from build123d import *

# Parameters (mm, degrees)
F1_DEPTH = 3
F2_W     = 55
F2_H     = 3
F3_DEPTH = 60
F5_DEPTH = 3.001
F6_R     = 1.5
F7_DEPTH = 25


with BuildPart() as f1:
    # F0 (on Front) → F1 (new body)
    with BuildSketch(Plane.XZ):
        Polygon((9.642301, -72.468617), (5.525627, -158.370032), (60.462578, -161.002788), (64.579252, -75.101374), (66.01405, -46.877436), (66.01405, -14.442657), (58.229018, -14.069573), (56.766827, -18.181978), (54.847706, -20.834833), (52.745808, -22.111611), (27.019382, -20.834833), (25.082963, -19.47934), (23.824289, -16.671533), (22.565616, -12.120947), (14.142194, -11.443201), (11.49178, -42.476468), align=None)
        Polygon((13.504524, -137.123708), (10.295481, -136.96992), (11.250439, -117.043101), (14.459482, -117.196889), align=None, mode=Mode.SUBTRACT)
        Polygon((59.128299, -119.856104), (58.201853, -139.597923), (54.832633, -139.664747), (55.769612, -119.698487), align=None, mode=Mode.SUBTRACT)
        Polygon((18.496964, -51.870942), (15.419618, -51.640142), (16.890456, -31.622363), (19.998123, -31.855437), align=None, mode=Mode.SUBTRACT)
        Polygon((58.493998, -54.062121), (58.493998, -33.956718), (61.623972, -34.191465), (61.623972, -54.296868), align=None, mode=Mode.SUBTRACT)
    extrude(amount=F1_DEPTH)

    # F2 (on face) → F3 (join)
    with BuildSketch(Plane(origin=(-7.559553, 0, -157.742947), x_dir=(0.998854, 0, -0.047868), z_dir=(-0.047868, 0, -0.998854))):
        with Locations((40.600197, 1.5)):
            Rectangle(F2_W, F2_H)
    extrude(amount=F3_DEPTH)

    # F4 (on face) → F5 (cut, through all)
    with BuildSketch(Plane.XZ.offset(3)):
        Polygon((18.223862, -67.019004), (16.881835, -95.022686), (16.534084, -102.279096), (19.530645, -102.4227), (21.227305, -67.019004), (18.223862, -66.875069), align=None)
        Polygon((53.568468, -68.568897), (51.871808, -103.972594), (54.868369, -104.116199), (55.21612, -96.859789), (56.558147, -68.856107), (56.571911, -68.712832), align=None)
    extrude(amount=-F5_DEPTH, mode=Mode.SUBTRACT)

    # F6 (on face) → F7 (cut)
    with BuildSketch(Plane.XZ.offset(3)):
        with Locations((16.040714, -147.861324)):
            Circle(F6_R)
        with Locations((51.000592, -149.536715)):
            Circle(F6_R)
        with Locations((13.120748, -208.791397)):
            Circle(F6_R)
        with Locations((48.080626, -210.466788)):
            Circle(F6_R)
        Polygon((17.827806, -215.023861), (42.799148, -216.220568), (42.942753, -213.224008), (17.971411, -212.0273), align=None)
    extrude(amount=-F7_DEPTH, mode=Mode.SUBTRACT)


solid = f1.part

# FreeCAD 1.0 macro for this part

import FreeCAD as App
import Part
import Sketcher
from FreeCAD import Vector
Q = App.Units.Quantity

doc = App.newDocument("Part")
body = doc.addObject("PartDesign::Body", "Body")

sketch1 = doc.addObject("Sketcher::SketchObject", "Sketch")
body.addObject(sketch1)
sketch1.AttachmentSupport = (doc.XZ_Plane, [""])
sketch1.MapMode = "FlatFace"
sketch1.addGeometry([
    Part.LineSegment(Vector(9.642301, -72.468617, 0), Vector(5.525627, -158.370032, 0)),
    Part.LineSegment(Vector(5.525627, -158.370032, 0), Vector(60.462578, -161.002788, 0)),
    Part.LineSegment(Vector(60.462578, -161.002788, 0), Vector(64.579252, -75.101374, 0)),
    Part.LineSegment(Vector(64.579252, -75.101374, 0), Vector(66.01405, -46.877436, 0)),
    Part.LineSegment(Vector(66.01405, -46.877436, 0), Vector(66.01405, -14.442657, 0)),
    Part.LineSegment(Vector(66.01405, -14.442657, 0), Vector(58.229018, -14.069573, 0)),
    Part.LineSegment(Vector(58.229018, -14.069573, 0), Vector(56.766827, -18.181978, 0)),
    Part.LineSegment(Vector(56.766827, -18.181978, 0), Vector(54.847706, -20.834833, 0)),
    Part.LineSegment(Vector(54.847706, -20.834833, 0), Vector(52.745808, -22.111611, 0)),
    Part.LineSegment(Vector(52.745808, -22.111611, 0), Vector(27.019382, -20.834833, 0)),
    Part.LineSegment(Vector(27.019382, -20.834833, 0), Vector(25.082963, -19.47934, 0)),
    Part.LineSegment(Vector(25.082963, -19.47934, 0), Vector(23.824289, -16.671533, 0)),
    Part.LineSegment(Vector(23.824289, -16.671533, 0), Vector(22.565616, -12.120947, 0)),
    Part.LineSegment(Vector(22.565616, -12.120947, 0), Vector(14.142194, -11.443201, 0)),
    Part.LineSegment(Vector(14.142194, -11.443201, 0), Vector(11.49178, -42.476468, 0)),
    Part.LineSegment(Vector(11.49178, -42.476468, 0), Vector(9.642301, -72.468617, 0)),
    Part.LineSegment(Vector(14.459482, -117.196889, 0), Vector(13.504524, -137.123708, 0)),
    Part.LineSegment(Vector(13.504524, -137.123708, 0), Vector(10.295481, -136.96992, 0)),
    Part.LineSegment(Vector(10.295481, -136.96992, 0), Vector(11.250439, -117.043101, 0)),
    Part.LineSegment(Vector(11.250439, -117.043101, 0), Vector(14.459482, -117.196889, 0)),
    Part.LineSegment(Vector(55.769612, -119.698487, 0), Vector(59.128299, -119.856104, 0)),
    Part.LineSegment(Vector(59.128299, -119.856104, 0), Vector(58.201853, -139.597923, 0)),
    Part.LineSegment(Vector(58.201853, -139.597923, 0), Vector(54.832633, -139.664747, 0)),
    Part.LineSegment(Vector(54.832633, -139.664747, 0), Vector(55.769612, -119.698487, 0)),
    Part.LineSegment(Vector(19.998123, -31.855437, 0), Vector(18.496964, -51.870942, 0)),
    Part.LineSegment(Vector(18.496964, -51.870942, 0), Vector(15.419618, -51.640142, 0)),
    Part.LineSegment(Vector(15.419618, -51.640142, 0), Vector(16.890456, -31.622363, 0)),
    Part.LineSegment(Vector(16.890456, -31.622363, 0), Vector(19.998123, -31.855437, 0)),
    Part.LineSegment(Vector(61.623972, -54.296868, 0), Vector(58.493998, -54.062121, 0)),
    Part.LineSegment(Vector(58.493998, -54.062121, 0), Vector(58.493998, -33.956718, 0)),
    Part.LineSegment(Vector(58.493998, -33.956718, 0), Vector(61.623972, -34.191465, 0)),
    Part.LineSegment(Vector(61.623972, -34.191465, 0), Vector(61.623972, -54.296868, 0)),
], False)
sketch1.addConstraint([
    Sketcher.Constraint("Coincident", 0, 2, 1, 1),
    Sketcher.Constraint("Coincident", 1, 2, 2, 1),
    Sketcher.Constraint("Coincident", 2, 2, 3, 1),
    Sketcher.Constraint("Coincident", 3, 2, 4, 1),
    Sketcher.Constraint("Coincident", 4, 2, 5, 1),
    Sketcher.Constraint("Coincident", 5, 2, 6, 1),
    Sketcher.Constraint("Coincident", 6, 2, 7, 1),
    Sketcher.Constraint("Coincident", 7, 2, 8, 1),
    Sketcher.Constraint("Coincident", 8, 2, 9, 1),
    Sketcher.Constraint("Coincident", 9, 2, 10, 1),
    Sketcher.Constraint("Coincident", 10, 2, 11, 1),
    Sketcher.Constraint("Coincident", 11, 2, 12, 1),
    Sketcher.Constraint("Coincident", 12, 2, 13, 1),
    Sketcher.Constraint("Coincident", 13, 2, 14, 1),
    Sketcher.Constraint("Coincident", 14, 2, 15, 1),
    Sketcher.Constraint("Coincident", 15, 2, 0, 1),
    Sketcher.Constraint("Coincident", 16, 2, 17, 1),
    Sketcher.Constraint("Coincident", 17, 2, 18, 1),
    Sketcher.Constraint("Coincident", 18, 2, 19, 1),
    Sketcher.Constraint("Coincident", 19, 2, 16, 1),
    Sketcher.Constraint("Coincident", 20, 2, 21, 1),
    Sketcher.Constraint("Coincident", 21, 2, 22, 1),
    Sketcher.Constraint("Coincident", 22, 2, 23, 1),
    Sketcher.Constraint("Coincident", 23, 2, 20, 1),
    Sketcher.Constraint("Coincident", 24, 2, 25, 1),
    Sketcher.Constraint("Coincident", 25, 2, 26, 1),
    Sketcher.Constraint("Coincident", 26, 2, 27, 1),
    Sketcher.Constraint("Coincident", 27, 2, 24, 1),
    Sketcher.Constraint("Coincident", 28, 2, 29, 1),
    Sketcher.Constraint("Coincident", 29, 2, 30, 1),
    Sketcher.Constraint("Coincident", 30, 2, 31, 1),
    Sketcher.Constraint("Coincident", 31, 2, 28, 1),
    Sketcher.Constraint("Vertical", 4),
    Sketcher.Constraint("Vertical", 29),
    Sketcher.Constraint("Vertical", 31),
    Sketcher.Constraint("Distance", 0, Q("86.000001 mm")),
    Sketcher.Constraint("Distance", 1, Q("55 mm")),
    Sketcher.Constraint("Distance", 2, Q("86 mm")),
    Sketcher.Constraint("DistanceX", 17, 2, 19, 2, Q("4.164001 mm")),
    Sketcher.Constraint("DistanceX", 24, 2, 10, 2, Q("6.585999 mm")),
    Sketcher.Constraint("Distance", 10, Q("2.3637 mm")),
    Sketcher.Constraint("DistanceY", 4, 1, 4, 2, Q("32.434779 mm")),
    Sketcher.Constraint("DistanceY", 13, 2, -1, 1, Q("11.443201 mm")),
    Sketcher.Constraint("DistanceX", -1, 1, 15, 2, Q("9.642301 mm")),
    Sketcher.Constraint("DistanceY", 18, 2, -1, 1, Q("117.043101 mm")),
    Sketcher.Constraint("DistanceX", -1, 1, 20, 2, Q("59.128299 mm")),
    Sketcher.Constraint("DistanceX", 2, 2, 3, 2, Q("1.434798 mm")),
    Sketcher.Constraint("DistanceY", 2, 2, 5, 2, Q("61.031801 mm")),
    Sketcher.Constraint("DistanceX", 8, 2, 7, 2, Q("2.101898 mm")),
    Sketcher.Constraint("DistanceY", 9, 2, 11, 2, Q("4.1633 mm")),
    Sketcher.Constraint("DistanceY", 7, 2, 11, 2, Q("4.1633 mm")),
    Sketcher.Constraint("DistanceY", 23, 2, 19, 2, Q("2.501598 mm")),
    Sketcher.Constraint("DistanceY", 1, 2, 23, 2, Q("41.304301 mm")),
    Sketcher.Constraint("DistanceY", 24, 2, 25, 2, Q("0.2308 mm")),
    Sketcher.Constraint("DistanceY", 25, 2, 10, 2, Q("32.160802 mm")),
    Sketcher.Constraint("Distance", 9, Q("25.758089 mm")),
    Sketcher.Constraint("Distance", 11, Q("3.077018 mm")),
    Sketcher.Constraint("Distance", 12, Q("4.72145 mm")),
    Sketcher.Constraint("Distance", 14, Q("31.146241 mm")),
    Sketcher.Constraint("Distance", 15, Q("30.049119 mm")),
    Sketcher.Constraint("Distance", 16, Q("19.949688 mm")),
    Sketcher.Constraint("Distance", 18, Q("19.949688 mm")),
    Sketcher.Constraint("Distance", 24, Q("20.071719 mm")),
    Sketcher.Constraint("Distance", 25, Q("3.085989 mm")),
    Sketcher.Constraint("DistanceY", 29, 1, 29, 2, Q("20.105403 mm")),
    Sketcher.Constraint("DistanceY", 31, 2, 31, 1, Q("20.105403 mm")),
    Sketcher.Constraint("DistanceY", 0, 2, -1, 1, Q("158.370032 mm")),
    Sketcher.Constraint("DistanceY", 1, 2, -1, 1, Q("161.002788 mm")),
    Sketcher.Constraint("DistanceX", -1, 1, 2, 2, Q("64.579252 mm")),
    Sketcher.Constraint("DistanceX", -1, 1, 5, 2, Q("58.229018 mm")),
    Sketcher.Constraint("DistanceY", 6, 2, -1, 1, Q("18.181978 mm")),
    Sketcher.Constraint("DistanceY", 8, 2, -1, 1, Q("22.111611 mm")),
    Sketcher.Constraint("DistanceX", -1, 1, 9, 2, Q("27.019382 mm")),
    Sketcher.Constraint("DistanceY", 10, 2, -1, 1, Q("19.47934 mm")),
    Sketcher.Constraint("DistanceX", -1, 1, 11, 2, Q("23.824289 mm")),
    Sketcher.Constraint("DistanceX", -1, 1, 14, 2, Q("11.49178 mm")),
    Sketcher.Constraint("DistanceY", 16, 2, -1, 1, Q("137.123708 mm")),
    Sketcher.Constraint("DistanceX", -1, 1, 17, 2, Q("10.295481 mm")),
    Sketcher.Constraint("DistanceY", 17, 2, -1, 1, Q("136.96992 mm")),
    Sketcher.Constraint("DistanceY", 28, 2, -1, 1, Q("54.062121 mm")),
    Sketcher.Constraint("DistanceY", 31, 2, -1, 1, Q("54.296868 mm")),
    Sketcher.Constraint("DistanceY", 0, 2, 2, 2, Q("83.268658 mm")),
    Sketcher.Constraint("DistanceY", 2, 2, 3, 2, Q("28.223938 mm")),
    Sketcher.Constraint("DistanceX", 6, 2, 5, 2, Q("1.462191 mm")),
    Sketcher.Constraint("DistanceX", 12, 2, 8, 2, Q("30.180192 mm")),
    Sketcher.Constraint("DistanceY", 20, 2, 2, 2, Q("44.75473 mm")),
    Sketcher.Constraint("DistanceY", 21, 2, 20, 2, Q("19.741819 mm")),
    Sketcher.Constraint("DistanceX", 16, 2, 21, 2, Q("44.697329 mm")),
    Sketcher.Constraint("DistanceX", 22, 2, 21, 2, Q("3.36922 mm")),
    Sketcher.Constraint("DistanceY", 1, 2, 22, 2, Q("21.338041 mm")),
    Sketcher.Constraint("DistanceX", 22, 2, 23, 2, Q("0.936979 mm")),
    Sketcher.Constraint("DistanceY", 26, 2, 9, 2, Q("10.78753 mm")),
    Sketcher.Constraint("DistanceX", 25, 2, 26, 2, Q("1.470838 mm")),
    Sketcher.Constraint("DistanceX", 27, 2, 9, 2, Q("7.021259 mm")),
    Sketcher.Constraint("DistanceX", 28, 2, 3, 2, Q("7.520052 mm")),
    Sketcher.Constraint("DistanceX", 31, 2, 2, 2, Q("2.95528 mm")),
])
pad1 = doc.addObject("PartDesign::Pad", "Pad")
body.addObject(pad1)
pad1.Profile = sketch1
pad1.Length = 3

sketch2 = doc.addObject("Sketcher::SketchObject", "Sketch001")
body.addObject(sketch2)
sketch2.Placement = App.Placement(Vector(-7.559553, 0, -157.742947), App.Rotation(Vector(0.998853671, 0, -0.047867984), Vector(0, -1, 0), Vector(-0.047867984, 0, -0.998853671), "ZXY"))
sketch2.addGeometry([
    Part.LineSegment(Vector(13.1, 3, 0), Vector(13.1, 0, 0)),
    Part.LineSegment(Vector(13.1, 0, 0), Vector(68.1, 0, 0)),
    Part.LineSegment(Vector(68.1, 0, 0), Vector(68.1, 3, 0)),
    Part.LineSegment(Vector(68.1, 3, 0), Vector(13.1, 3, 0)),
], False)
sketch2.addConstraint([
    Sketcher.Constraint("Coincident", 0, 2, 1, 1),
    Sketcher.Constraint("Coincident", 1, 2, 2, 1),
    Sketcher.Constraint("Coincident", 2, 2, 3, 1),
    Sketcher.Constraint("Coincident", 3, 2, 0, 1),
    Sketcher.Constraint("Vertical", 0),
    Sketcher.Constraint("Horizontal", 1),
    Sketcher.Constraint("Vertical", 2),
    Sketcher.Constraint("Horizontal", 3),
    Sketcher.Constraint("PointOnObject", 0, 2, -1),
    Sketcher.Constraint("DistanceX", 1, 1, 1, 2, Q("55 mm")),
    Sketcher.Constraint("DistanceY", 0, 2, 0, 1, Q("3 mm")),
    Sketcher.Constraint("DistanceX", -1, 1, 0, 2, Q("13.100197 mm")),
])
pad2 = doc.addObject("PartDesign::Pad", "Pad001")
body.addObject(pad2)
pad2.Profile = sketch2
pad2.Length = 60

sketch3 = doc.addObject("Sketcher::SketchObject", "Sketch002")
body.addObject(sketch3)
sketch3.AttachmentSupport = (doc.XZ_Plane, [""])
sketch3.MapMode = "FlatFace"
sketch3.AttachmentOffset = App.Placement(Vector(0, 0, 3), App.Rotation())
sketch3.addGeometry([
    Part.LineSegment(Vector(18.22, -67.02, 0), Vector(16.88, -95.02, 0)),
    Part.LineSegment(Vector(16.88, -95.02, 0), Vector(16.53, -102.28, 0)),
    Part.LineSegment(Vector(16.53, -102.28, 0), Vector(19.53, -102.42, 0)),
    Part.LineSegment(Vector(19.53, -102.42, 0), Vector(21.23, -67.02, 0)),
    Part.LineSegment(Vector(21.23, -67.02, 0), Vector(18.22, -66.88, 0)),
    Part.LineSegment(Vector(18.22, -66.88, 0), Vector(18.22, -67.02, 0)),
    Part.LineSegment(Vector(53.57, -68.57, 0), Vector(51.87, -103.97, 0)),
    Part.LineSegment(Vector(51.87, -103.97, 0), Vector(54.87, -104.12, 0)),
    Part.LineSegment(Vector(54.87, -104.12, 0), Vector(55.22, -96.86, 0)),
    Part.LineSegment(Vector(55.22, -96.86, 0), Vector(56.56, -68.86, 0)),
    Part.LineSegment(Vector(56.56, -68.86, 0), Vector(56.57, -68.71, 0)),
    Part.LineSegment(Vector(56.57, -68.71, 0), Vector(53.57, -68.57, 0)),
], False)
sketch3.addConstraint([
    Sketcher.Constraint("Coincident", 0, 2, 1, 1),
    Sketcher.Constraint("Coincident", 1, 2, 2, 1),
    Sketcher.Constraint("Coincident", 2, 2, 3, 1),
    Sketcher.Constraint("Coincident", 3, 2, 4, 1),
    Sketcher.Constraint("Coincident", 4, 2, 5, 1),
    Sketcher.Constraint("Coincident", 5, 2, 0, 1),
    Sketcher.Constraint("Coincident", 6, 2, 7, 1),
    Sketcher.Constraint("Coincident", 7, 2, 8, 1),
    Sketcher.Constraint("Coincident", 8, 2, 9, 1),
    Sketcher.Constraint("Coincident", 9, 2, 10, 1),
    Sketcher.Constraint("Coincident", 10, 2, 11, 1),
    Sketcher.Constraint("Coincident", 11, 2, 6, 1),
    Sketcher.Constraint("Vertical", 5),
    Sketcher.Constraint("Parallel", 0, 1),
    Sketcher.Constraint("Perpendicular", 1, 2),
    Sketcher.Constraint("Perpendicular", 2, 3),
    Sketcher.Constraint("Perpendicular", 3, 4),
    Sketcher.Constraint("Perpendicular", 4, 6),
    Sketcher.Constraint("Perpendicular", 6, 7),
    Sketcher.Constraint("Perpendicular", 7, 8),
    Sketcher.Constraint("Parallel", 8, 9),
    Sketcher.Constraint("Perpendicular", 9, 11),
    Sketcher.Constraint("Horizontal", 3, 2, 5, 2),
    Sketcher.Constraint("Equal", 3, 6),
    Sketcher.Constraint("Equal", 2, 7),
    Sketcher.Constraint("Equal", 1, 8),
    Sketcher.Constraint("Equal", 0, 9),
    Sketcher.Constraint("Equal", 4, 11),
    Sketcher.Constraint("Distance", 2, Q("3 mm")),
    Sketcher.Constraint("DistanceY", 2, 2, -1, 1, Q("102.4227 mm")),
    Sketcher.Constraint("DistanceY", 7, 2, -1, 1, Q("104.116199 mm")),
    Sketcher.Constraint("Distance", 0, Q("28.035821 mm")),
    Sketcher.Constraint("Distance", 4, Q("3.00689 mm")),
    Sketcher.Constraint("Distance", 6, Q("35.444328 mm")),
    Sketcher.Constraint("DistanceX", -1, 1, 7, 2, Q("54.868369 mm")),
    Sketcher.Constraint("DistanceX", 3, 2, 9, 2, Q("35.330842 mm")),
])
pocket1 = doc.addObject("PartDesign::Pocket", "Pocket")
body.addObject(pocket1)
pocket1.Profile = sketch3
pocket1.Type = "ThroughAll"

sketch4 = doc.addObject("Sketcher::SketchObject", "Sketch003")
body.addObject(sketch4)
sketch4.AttachmentSupport = (doc.XZ_Plane, [""])
sketch4.MapMode = "FlatFace"
sketch4.AttachmentOffset = App.Placement(Vector(0, 0, 3), App.Rotation())
sketch4.addGeometry([
    Part.Circle(Vector(16, -147.9, 0), Vector(0, 0, 1), 1.5),
    Part.Circle(Vector(51, -149.5, 0), Vector(0, 0, 1), 1.5),
    Part.Circle(Vector(13.1, -208.8, 0), Vector(0, 0, 1), 1.5),
    Part.Circle(Vector(48.1, -210.5, 0), Vector(0, 0, 1), 1.5),
    Part.LineSegment(Vector(17.8, -215, 0), Vector(42.8, -216.2, 0)),
    Part.LineSegment(Vector(42.8, -216.2, 0), Vector(42.9, -213.2, 0)),
    Part.LineSegment(Vector(42.9, -213.2, 0), Vector(18, -212, 0)),
    Part.LineSegment(Vector(18, -212, 0), Vector(17.8, -215, 0)),
], False)
sketch4.addConstraint([
    Sketcher.Constraint("Coincident", 4, 2, 5, 1),
    Sketcher.Constraint("Coincident", 5, 2, 6, 1),
    Sketcher.Constraint("Coincident", 6, 2, 7, 1),
    Sketcher.Constraint("Coincident", 7, 2, 4, 1),
    Sketcher.Constraint("Equal", 0, 1),
    Sketcher.Constraint("Equal", 1, 2),
    Sketcher.Constraint("Equal", 2, 3),
    Sketcher.Constraint("Perpendicular", 4, 5),
    Sketcher.Constraint("Perpendicular", 5, 6),
    Sketcher.Constraint("Perpendicular", 6, 7),
    Sketcher.Constraint("Diameter", 0, Q("3 mm")),
    Sketcher.Constraint("Distance", 4, Q("25.000001 mm")),
    Sketcher.Constraint("Distance", 5, Q("2.999999 mm")),
    Sketcher.Constraint("DistanceY", 6, 2, -1, 1, Q("212.0273 mm")),
    Sketcher.Constraint("DistanceX", 2, 3, 4, 2, Q("29.6784 mm")),
    Sketcher.Constraint("DistanceX", -1, 1, 1, 3, Q("51.000592 mm")),
    Sketcher.Constraint("DistanceX", -1, 1, 2, 3, Q("13.120748 mm")),
    Sketcher.Constraint("DistanceY", 3, 3, -1, 1, Q("210.466788 mm")),
    Sketcher.Constraint("DistanceY", 5, 2, -1, 1, Q("213.224008 mm")),
    Sketcher.Constraint("DistanceY", 1, 3, 0, 3, Q("1.675391 mm")),
    Sketcher.Constraint("DistanceX", 2, 3, 3, 3, Q("34.959878 mm")),
    Sketcher.Constraint("DistanceY", 3, 3, 2, 3, Q("1.675391 mm")),
    Sketcher.Constraint("DistanceX", 0, 3, 5, 2, Q("26.902039 mm")),
    Sketcher.Constraint("DistanceY", 0, 3, -1, 1, Q("147.861324 mm")),
])
pocket2 = doc.addObject("PartDesign::Pocket", "Pocket001")
body.addObject(pocket2)
pocket2.Profile = sketch4
pocket2.Length = 25

doc.recompute()
